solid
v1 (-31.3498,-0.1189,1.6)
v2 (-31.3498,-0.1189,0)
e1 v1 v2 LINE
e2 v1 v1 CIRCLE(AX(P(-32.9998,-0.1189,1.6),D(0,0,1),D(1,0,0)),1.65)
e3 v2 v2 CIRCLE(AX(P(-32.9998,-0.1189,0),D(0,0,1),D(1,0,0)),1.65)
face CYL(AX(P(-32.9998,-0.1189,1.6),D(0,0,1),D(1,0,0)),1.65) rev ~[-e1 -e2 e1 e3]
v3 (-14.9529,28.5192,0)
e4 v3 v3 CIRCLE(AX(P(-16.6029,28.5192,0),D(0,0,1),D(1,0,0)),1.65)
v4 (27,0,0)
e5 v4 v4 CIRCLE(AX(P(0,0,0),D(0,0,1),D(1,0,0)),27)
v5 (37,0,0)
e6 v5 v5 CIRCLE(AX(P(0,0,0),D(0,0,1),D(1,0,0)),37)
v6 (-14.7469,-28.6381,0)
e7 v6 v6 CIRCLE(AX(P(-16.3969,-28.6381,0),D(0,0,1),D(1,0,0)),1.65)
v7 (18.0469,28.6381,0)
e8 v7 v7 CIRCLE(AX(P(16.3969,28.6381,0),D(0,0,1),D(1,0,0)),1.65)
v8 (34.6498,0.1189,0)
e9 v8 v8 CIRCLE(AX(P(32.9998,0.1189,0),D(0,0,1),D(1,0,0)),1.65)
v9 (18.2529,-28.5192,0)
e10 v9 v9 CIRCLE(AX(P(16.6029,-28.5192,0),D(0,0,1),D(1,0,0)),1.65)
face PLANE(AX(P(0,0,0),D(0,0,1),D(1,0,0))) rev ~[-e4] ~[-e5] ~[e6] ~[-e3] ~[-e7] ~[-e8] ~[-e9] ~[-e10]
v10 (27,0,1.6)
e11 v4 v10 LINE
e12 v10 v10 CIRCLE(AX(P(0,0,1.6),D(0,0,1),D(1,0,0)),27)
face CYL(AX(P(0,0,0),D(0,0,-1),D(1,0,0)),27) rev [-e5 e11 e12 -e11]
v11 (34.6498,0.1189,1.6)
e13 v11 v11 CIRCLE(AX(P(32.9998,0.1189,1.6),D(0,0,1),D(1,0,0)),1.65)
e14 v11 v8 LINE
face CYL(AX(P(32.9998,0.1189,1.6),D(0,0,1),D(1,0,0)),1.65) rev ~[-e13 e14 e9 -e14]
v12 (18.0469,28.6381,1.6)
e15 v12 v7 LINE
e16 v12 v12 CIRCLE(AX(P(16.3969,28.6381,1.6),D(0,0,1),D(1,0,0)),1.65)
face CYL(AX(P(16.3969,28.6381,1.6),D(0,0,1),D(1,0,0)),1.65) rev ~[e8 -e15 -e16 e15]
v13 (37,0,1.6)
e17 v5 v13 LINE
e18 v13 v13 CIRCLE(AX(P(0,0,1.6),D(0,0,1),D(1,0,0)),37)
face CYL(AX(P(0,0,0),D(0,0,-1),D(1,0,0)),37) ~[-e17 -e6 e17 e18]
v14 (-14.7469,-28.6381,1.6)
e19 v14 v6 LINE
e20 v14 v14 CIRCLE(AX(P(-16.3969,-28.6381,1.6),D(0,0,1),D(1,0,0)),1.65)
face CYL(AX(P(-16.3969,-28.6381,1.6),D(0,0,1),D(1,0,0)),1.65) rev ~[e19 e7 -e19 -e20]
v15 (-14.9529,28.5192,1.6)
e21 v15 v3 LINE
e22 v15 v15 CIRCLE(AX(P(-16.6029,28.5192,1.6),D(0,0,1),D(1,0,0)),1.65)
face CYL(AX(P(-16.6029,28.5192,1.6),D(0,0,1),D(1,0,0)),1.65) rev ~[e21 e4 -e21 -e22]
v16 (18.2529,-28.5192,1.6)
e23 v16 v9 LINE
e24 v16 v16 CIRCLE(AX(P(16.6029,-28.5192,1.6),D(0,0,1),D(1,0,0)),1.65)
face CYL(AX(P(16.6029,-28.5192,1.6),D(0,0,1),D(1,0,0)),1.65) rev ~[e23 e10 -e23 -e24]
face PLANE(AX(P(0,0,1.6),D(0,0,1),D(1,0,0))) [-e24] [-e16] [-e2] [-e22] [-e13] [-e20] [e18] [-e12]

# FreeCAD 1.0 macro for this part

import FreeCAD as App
import Part
import Sketcher
from FreeCAD import Vector
Q = App.Units.Quantity

doc = App.newDocument("Part")
body = doc.addObject("PartDesign::Body", "Body")

sketch1 = body.newObject("Sketcher::SketchObject", "Sketch")
sketch1.AttachmentSupport = (doc.getObject("XY_Plane"), [""])
sketch1.MapMode = "FlatFace"
sketch1.addGeometry([
    Part.Circle(Vector(0, 0, 0), Vector(0, 0, 1), 37),
    Part.Circle(Vector(0, 0, 0), Vector(0, 0, 1), 27),
], False)
sketch1.addConstraint([
    Sketcher.Constraint("Coincident", 0, 3, -1, 1),
    Sketcher.Constraint("Coincident", 1, 3, -1, 1),
    Sketcher.Constraint("Diameter", 0, Q("74 mm")),
    Sketcher.Constraint("Diameter", 1, Q("54 mm")),
])
pad1 = body.newObject("PartDesign::Pad", "Pad")
pad1.Profile = sketch1
pad1.Length = 1.6

sketch2 = body.newObject("Sketcher::SketchObject", "Sketch001")
sketch2.AttachmentSupport = (doc.getObject("XY_Plane"), [""])
sketch2.MapMode = "FlatFace"
sketch2.AttachmentOffset = App.Placement(Vector(0, 0, 1.6), App.Rotation())
sketch2.addGeometry([
    Part.Circle(Vector(-32.9998, -0.1189, 0), Vector(0, 0, 1), 1.65),
    Part.Circle(Vector(-16.3969, -28.6381, 0), Vector(0, 0, 1), 1.65),
    Part.Circle(Vector(-16.6029, 28.5192, 0), Vector(0, 0, 1), 1.65),
    Part.Circle(Vector(16.3969, 28.6381, 0), Vector(0, 0, 1), 1.65),
    Part.Circle(Vector(16.6029, -28.5192, 0), Vector(0, 0, 1), 1.65),
    Part.Circle(Vector(32.9998, 0.1189, 0), Vector(0, 0, 1), 1.65),
], False)
sketch2.addConstraint([
    Sketcher.Constraint("Equal", 0, 1),
    Sketcher.Constraint("Equal", 1, 2),
    Sketcher.Constraint("Equal", 2, 3),
    Sketcher.Constraint("Equal", 3, 4),
    Sketcher.Constraint("Equal", 4, 5),
    Sketcher.Constraint("Symmetric", 1, 3, 3, 3, -1, 1),
    Sketcher.Constraint("Symmetric", 2, 3, 4, 3, -1, 1),
    Sketcher.Constraint("Symmetric", 0, 3, 5, 3, -1, 1),
    Sketcher.Constraint("Diameter", 0, Q("3.3 mm")),
    Sketcher.Constraint("DistanceY", 0, 3, -1, 1, Q("0.119 mm")),
    Sketcher.Constraint("DistanceX", 1, 3, -1, 1, Q("16.397 mm")),
    Sketcher.Constraint("DistanceY", 1, 3, -1, 1, Q("28.638 mm")),
    Sketcher.Constraint("DistanceX", 2, 3, -1, 1, Q("16.603 mm")),
    Sketcher.Constraint("DistanceX", 0, 3, 1, 3, Q("16.603 mm")),
    Sketcher.Constraint("DistanceY", 0, 3, 2, 3, Q("28.638 mm")),
])
pocket1 = body.newObject("PartDesign::Pocket", "Pocket")
pocket1.Profile = sketch2
pocket1.Type = "ThroughAll"

doc.recompute()
